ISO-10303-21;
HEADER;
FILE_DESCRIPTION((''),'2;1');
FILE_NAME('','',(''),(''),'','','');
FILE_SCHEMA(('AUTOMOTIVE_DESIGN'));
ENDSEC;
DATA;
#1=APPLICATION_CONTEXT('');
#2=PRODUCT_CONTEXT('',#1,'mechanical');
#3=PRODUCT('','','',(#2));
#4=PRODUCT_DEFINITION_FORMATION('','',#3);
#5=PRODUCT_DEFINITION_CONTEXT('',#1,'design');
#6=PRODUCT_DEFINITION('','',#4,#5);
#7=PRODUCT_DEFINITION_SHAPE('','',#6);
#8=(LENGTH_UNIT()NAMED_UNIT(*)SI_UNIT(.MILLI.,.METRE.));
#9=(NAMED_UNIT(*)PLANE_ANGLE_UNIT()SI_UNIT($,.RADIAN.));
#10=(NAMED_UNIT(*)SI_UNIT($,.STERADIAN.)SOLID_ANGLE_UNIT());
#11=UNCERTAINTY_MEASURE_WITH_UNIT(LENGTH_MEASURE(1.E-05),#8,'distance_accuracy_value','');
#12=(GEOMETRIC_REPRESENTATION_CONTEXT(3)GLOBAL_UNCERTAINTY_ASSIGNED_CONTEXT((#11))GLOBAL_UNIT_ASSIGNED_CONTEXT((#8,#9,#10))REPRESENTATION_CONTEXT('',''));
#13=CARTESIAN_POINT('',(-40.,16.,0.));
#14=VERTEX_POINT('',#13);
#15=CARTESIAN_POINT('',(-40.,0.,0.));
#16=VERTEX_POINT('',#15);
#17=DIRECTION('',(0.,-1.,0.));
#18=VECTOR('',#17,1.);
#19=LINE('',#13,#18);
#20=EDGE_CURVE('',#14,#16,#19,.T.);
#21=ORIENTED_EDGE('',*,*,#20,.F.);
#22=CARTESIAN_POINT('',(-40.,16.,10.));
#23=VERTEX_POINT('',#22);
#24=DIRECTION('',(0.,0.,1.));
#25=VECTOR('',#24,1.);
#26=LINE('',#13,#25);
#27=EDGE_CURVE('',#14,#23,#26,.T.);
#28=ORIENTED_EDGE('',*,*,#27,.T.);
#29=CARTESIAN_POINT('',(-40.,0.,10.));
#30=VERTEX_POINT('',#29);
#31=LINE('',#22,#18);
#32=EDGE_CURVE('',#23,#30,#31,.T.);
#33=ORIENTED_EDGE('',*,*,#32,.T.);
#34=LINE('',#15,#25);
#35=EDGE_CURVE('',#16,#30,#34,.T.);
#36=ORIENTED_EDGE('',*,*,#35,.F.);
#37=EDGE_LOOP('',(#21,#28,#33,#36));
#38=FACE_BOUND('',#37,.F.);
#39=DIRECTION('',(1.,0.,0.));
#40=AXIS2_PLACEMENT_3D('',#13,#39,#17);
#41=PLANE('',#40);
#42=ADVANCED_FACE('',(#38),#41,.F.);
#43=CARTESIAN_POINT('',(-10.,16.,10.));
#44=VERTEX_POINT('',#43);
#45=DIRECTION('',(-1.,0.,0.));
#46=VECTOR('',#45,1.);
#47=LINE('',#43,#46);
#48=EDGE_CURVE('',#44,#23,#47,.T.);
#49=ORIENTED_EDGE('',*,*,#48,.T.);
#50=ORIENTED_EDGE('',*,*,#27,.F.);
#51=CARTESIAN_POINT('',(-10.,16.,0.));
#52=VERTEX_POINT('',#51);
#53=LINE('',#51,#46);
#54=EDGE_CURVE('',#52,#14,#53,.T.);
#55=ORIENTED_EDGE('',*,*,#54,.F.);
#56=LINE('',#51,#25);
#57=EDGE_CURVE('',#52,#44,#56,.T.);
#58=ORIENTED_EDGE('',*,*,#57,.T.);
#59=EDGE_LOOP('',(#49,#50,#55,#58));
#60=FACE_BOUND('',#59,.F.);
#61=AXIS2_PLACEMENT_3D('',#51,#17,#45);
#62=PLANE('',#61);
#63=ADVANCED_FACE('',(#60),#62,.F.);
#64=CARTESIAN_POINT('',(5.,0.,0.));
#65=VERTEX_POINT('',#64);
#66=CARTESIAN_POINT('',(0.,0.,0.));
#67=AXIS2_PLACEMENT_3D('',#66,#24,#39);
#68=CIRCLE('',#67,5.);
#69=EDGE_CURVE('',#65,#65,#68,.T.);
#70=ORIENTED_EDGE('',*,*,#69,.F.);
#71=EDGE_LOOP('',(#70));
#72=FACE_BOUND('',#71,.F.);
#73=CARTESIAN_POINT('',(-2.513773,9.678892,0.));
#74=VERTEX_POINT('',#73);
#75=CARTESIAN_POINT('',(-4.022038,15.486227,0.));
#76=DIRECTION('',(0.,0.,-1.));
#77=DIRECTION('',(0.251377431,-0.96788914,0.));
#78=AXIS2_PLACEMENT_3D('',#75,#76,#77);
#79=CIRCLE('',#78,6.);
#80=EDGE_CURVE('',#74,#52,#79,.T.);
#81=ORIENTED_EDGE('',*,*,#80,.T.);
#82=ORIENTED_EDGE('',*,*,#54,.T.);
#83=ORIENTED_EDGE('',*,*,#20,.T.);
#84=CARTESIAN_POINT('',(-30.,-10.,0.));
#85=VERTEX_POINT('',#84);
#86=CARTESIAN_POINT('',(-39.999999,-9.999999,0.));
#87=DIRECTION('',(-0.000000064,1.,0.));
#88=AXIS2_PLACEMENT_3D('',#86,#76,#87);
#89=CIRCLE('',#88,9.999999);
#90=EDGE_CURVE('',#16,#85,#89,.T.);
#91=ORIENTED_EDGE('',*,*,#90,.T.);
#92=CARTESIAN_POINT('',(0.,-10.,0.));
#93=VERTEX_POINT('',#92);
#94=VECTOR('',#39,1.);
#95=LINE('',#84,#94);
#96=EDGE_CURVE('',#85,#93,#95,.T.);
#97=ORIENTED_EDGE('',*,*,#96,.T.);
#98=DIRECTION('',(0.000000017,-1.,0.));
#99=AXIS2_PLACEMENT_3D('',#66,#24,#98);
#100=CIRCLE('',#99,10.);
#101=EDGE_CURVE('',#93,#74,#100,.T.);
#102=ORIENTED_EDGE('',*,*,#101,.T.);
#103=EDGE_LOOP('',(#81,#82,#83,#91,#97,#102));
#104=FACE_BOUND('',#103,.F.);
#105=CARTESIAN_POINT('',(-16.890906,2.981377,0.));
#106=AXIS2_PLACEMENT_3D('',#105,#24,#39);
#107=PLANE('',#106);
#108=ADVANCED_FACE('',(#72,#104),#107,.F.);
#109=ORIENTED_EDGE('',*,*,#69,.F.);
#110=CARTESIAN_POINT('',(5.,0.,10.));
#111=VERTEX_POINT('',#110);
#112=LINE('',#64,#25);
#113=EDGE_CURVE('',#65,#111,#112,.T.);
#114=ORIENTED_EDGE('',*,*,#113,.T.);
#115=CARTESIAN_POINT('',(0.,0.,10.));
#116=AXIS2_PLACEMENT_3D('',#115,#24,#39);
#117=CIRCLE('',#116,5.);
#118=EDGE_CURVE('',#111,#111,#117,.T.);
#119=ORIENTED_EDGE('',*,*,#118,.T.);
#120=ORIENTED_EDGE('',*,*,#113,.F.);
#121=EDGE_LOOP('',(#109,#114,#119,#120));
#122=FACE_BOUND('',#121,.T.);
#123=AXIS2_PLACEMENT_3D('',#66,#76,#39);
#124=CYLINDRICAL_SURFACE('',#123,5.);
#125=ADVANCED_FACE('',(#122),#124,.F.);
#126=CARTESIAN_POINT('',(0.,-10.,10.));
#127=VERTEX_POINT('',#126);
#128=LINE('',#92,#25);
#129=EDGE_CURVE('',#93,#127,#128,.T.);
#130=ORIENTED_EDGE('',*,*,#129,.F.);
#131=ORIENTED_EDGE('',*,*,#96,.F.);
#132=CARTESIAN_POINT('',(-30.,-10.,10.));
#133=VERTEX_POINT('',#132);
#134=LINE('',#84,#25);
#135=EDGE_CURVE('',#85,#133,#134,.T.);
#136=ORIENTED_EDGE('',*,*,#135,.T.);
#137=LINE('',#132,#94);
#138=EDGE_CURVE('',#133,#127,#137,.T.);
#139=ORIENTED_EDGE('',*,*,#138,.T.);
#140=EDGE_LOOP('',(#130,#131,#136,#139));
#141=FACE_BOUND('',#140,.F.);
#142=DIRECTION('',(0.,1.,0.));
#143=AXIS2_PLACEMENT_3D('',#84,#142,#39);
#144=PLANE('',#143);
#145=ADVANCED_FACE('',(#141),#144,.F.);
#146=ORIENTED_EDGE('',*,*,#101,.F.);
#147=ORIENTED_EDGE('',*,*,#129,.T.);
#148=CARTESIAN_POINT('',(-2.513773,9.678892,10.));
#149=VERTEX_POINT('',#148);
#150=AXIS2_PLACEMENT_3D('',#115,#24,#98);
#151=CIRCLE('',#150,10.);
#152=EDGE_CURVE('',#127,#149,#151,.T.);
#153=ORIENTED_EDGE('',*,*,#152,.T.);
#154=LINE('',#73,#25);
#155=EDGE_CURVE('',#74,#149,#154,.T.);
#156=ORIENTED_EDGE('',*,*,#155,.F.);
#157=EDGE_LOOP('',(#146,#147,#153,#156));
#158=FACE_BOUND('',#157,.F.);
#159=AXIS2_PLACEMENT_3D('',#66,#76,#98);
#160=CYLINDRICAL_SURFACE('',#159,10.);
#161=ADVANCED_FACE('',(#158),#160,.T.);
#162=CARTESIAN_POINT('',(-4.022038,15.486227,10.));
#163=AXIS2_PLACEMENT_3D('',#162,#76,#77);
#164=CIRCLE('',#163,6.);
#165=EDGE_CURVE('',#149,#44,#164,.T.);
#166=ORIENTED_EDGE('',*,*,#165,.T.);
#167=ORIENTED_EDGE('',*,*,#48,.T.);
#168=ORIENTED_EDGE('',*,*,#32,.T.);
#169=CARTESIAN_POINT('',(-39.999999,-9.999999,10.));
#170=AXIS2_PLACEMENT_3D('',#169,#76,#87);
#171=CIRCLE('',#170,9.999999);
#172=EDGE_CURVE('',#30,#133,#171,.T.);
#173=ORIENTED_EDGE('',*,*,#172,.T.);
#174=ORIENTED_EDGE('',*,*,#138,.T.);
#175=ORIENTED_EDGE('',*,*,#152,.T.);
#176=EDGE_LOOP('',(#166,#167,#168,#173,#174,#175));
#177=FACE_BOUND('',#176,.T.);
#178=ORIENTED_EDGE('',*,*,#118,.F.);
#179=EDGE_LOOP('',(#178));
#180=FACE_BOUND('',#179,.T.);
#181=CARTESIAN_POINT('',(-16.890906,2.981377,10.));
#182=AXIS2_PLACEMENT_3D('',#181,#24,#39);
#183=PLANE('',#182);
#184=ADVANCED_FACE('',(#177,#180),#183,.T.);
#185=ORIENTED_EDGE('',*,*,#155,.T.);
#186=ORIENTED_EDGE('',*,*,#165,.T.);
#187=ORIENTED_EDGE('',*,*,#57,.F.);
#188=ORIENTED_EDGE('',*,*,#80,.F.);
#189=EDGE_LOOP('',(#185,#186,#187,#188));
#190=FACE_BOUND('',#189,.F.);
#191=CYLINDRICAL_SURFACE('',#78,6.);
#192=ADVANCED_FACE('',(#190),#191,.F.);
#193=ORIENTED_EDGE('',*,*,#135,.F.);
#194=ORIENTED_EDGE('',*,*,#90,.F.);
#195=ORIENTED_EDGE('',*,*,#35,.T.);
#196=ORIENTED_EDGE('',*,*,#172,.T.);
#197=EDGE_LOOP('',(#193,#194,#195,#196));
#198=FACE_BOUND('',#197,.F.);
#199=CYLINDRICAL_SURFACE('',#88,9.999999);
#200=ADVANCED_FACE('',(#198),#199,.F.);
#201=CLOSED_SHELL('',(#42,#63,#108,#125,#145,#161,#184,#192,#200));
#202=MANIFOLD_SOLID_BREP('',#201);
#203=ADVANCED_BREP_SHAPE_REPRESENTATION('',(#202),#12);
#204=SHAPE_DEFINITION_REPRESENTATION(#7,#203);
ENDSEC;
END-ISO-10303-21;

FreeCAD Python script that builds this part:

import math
import FreeCAD as App
import Part
import Sketcher
Q = App.Units.Quantity

doc = App.newDocument("Part")
body = doc.addObject("PartDesign::Body", "Body")

sketch1 = body.newObject("Sketcher::SketchObject", "Sketch")
sketch1.AttachmentSupport = (doc.getObject("XY_Plane"), [""])
sketch1.MapMode = "FlatFace"
sketch1.addGeometry([
    Part.LineSegment(App.Vector(-30, -10, 0), App.Vector(0, -10, 0)),
    Part.ArcOfCircle(Part.Circle(App.Vector(0, 0, 0), App.Vector(0, 0, 1), 10), math.radians(-89.999999), math.radians(104.559028)),
    Part.ArcOfCircle(Part.Circle(App.Vector(-4.022038, 15.486227, 0), App.Vector(0, 0, 1), 6), math.radians(175.087811), math.radians(284.559036)),
    Part.LineSegment(App.Vector(-10, 16, 0), App.Vector(-40, 16, 0)),
    Part.LineSegment(App.Vector(-40, 16, 0), App.Vector(-40, 0, 0)),
    Part.ArcOfCircle(Part.Circle(App.Vector(-39.999999, -9.999999, 0), App.Vector(0, 0, 1), 9.999999), math.radians(-0.000004), math.radians(90.000004)),
    Part.Circle(App.Vector(0, 0, 0), App.Vector(0, 0, 1), 5),
], False)
sketch1.addConstraint([
    Sketcher.Constraint("Tangent", 0, 2, 1, 1),
    Sketcher.Constraint("Tangent", 1, 2, 2, 2),
    Sketcher.Constraint("Coincident", 2, 1, 3, 1),
    Sketcher.Constraint("Coincident", 3, 2, 4, 1),
    Sketcher.Constraint("Coincident", 4, 2, 5, 2),
    Sketcher.Constraint("Coincident", 5, 1, 0, 1),
    Sketcher.Constraint("Horizontal", 0),
    Sketcher.Constraint("Horizontal", 3),
    Sketcher.Constraint("Vertical", 4),
    Sketcher.Constraint("Coincident", 1, 3, -1, 1),
    Sketcher.Constraint("Coincident", 6, 3, -1, 1),
    Sketcher.Constraint("Equal", 1, 5),
    Sketcher.Constraint("PointOnObject", 4, 2, -1),
    Sketcher.Constraint("Vertical", 5, 3, 3, 2),
    Sketcher.Constraint("Equal", 0, 3),
    Sketcher.Constraint("Diameter", 6, Q("10 mm")),
    Sketcher.Constraint("Radius", 1, Q("10 mm")),
    Sketcher.Constraint("Radius", 2, Q("6 mm")),
    Sketcher.Constraint("DistanceX", 0, 1, 0, 2, Q("30 mm")),
    Sketcher.Constraint("DistanceY", 4, 2, 4, 1, Q("16 mm")),
])
pad1 = body.newObject("PartDesign::Pad", "Pad")
pad1.Profile = sketch1
pad1.Length = 10

doc.recompute()
